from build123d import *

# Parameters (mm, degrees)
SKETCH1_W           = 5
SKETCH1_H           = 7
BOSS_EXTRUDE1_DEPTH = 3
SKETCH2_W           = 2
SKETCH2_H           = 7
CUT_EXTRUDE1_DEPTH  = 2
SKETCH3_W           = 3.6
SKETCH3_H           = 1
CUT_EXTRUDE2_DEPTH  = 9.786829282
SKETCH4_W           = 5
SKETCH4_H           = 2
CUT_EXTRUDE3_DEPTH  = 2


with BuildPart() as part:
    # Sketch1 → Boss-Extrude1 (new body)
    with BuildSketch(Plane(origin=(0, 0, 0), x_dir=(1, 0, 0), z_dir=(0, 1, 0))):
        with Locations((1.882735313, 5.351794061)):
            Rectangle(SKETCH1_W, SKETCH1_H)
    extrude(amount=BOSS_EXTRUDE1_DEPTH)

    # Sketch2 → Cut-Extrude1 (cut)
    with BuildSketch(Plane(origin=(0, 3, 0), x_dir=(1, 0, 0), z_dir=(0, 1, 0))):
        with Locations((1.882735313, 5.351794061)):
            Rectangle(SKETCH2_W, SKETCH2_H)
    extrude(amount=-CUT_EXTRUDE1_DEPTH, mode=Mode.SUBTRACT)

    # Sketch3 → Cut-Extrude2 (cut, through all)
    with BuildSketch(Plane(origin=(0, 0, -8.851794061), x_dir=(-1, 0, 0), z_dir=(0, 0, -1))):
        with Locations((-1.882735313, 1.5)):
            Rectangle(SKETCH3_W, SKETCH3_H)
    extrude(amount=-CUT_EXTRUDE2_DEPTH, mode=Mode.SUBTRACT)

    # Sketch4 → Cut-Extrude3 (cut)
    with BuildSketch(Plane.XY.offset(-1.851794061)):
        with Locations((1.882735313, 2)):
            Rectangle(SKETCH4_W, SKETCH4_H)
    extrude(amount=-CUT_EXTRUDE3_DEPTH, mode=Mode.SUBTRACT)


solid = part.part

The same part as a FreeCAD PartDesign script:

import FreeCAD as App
import Part
import Sketcher
from FreeCAD import Vector

doc = App.newDocument("Part")
params = doc.addObject("Spreadsheet::Sheet", "Params")
for row, (alias, value) in enumerate([
    ("sketch1_width", "5 mm"),
    ("sketch1_height", "7 mm"),
    ("pad1_length", "3 mm"),
    ("sketch2_width", "2 mm"),
    ("sketch2_height", "7 mm"),
    ("pocket1_length", "2 mm"),
    ("sketch3_height", "1 mm"),
    ("sketch3_width", "3.6 mm"),
    ("sketch4_width", "5 mm"),
    ("sketch4_height", "2 mm"),
    ("pocket3_length", "2 mm"),
], start=1):
    params.set(f"A{row}", alias)
    params.set(f"B{row}", "=" + value)
    params.setAlias(f"B{row}", alias)

body = doc.addObject("PartDesign::Body", "Body")

sketch1 = body.newObject("Sketcher::SketchObject", "Sketch")
sketch1.AttachmentSupport = (doc.getObject("XZ_Plane"), [""])
sketch1.MapMode = "FlatFace"
sketch1.addGeometry([
    Part.LineSegment(Vector(-0.617265, -8.851794, 0), Vector(-0.617265, -1.851794, 0)),
    Part.LineSegment(Vector(-0.617265, -1.851794, 0), Vector(4.382735, -1.851794, 0)),
    Part.LineSegment(Vector(4.382735, -1.851794, 0), Vector(4.382735, -8.851794, 0)),
    Part.LineSegment(Vector(4.382735, -8.851794, 0), Vector(-0.617265, -8.851794, 0)),
], False)
sketch1.addConstraint([
    Sketcher.Constraint("Coincident", 0, 2, 1, 1),
    Sketcher.Constraint("Coincident", 1, 2, 2, 1),
    Sketcher.Constraint("Coincident", 2, 2, 3, 1),
    Sketcher.Constraint("Coincident", 3, 2, 0, 1),
    Sketcher.Constraint("Vertical", 0),
    Sketcher.Constraint("Horizontal", 1),
    Sketcher.Constraint("Vertical", 2),
    Sketcher.Constraint("Horizontal", 3),
    Sketcher.Constraint("DistanceX", 1, 1, 1, 2, 5.0),
    Sketcher.Constraint("DistanceY", 0, 1, 0, 2, 7.0),
    Sketcher.Constraint("DistanceX", 0, 2, -1, 1, 0.617265),
    Sketcher.Constraint("DistanceY", 0, 2, -1, 1, 1.851794),
])
sketch1.setExpression("Constraints[8]", "Params.sketch1_width")
sketch1.setExpression("Constraints[9]", "Params.sketch1_height")
pad1 = body.newObject("PartDesign::Pad", "Pad")
pad1.Profile = sketch1
pad1.setExpression("Length", "Params.pad1_length")
pad1.Reversed = True

sketch2 = body.newObject("Sketcher::SketchObject", "Sketch001")
sketch2.AttachmentSupport = (doc.getObject("XZ_Plane"), [""])
sketch2.MapMode = "FlatFace"
sketch2.AttachmentOffset = App.Placement(Vector(0, 0, -3), App.Rotation())
sketch2.addGeometry([
    Part.LineSegment(Vector(0.882735, -8.851794, 0), Vector(0.882735, -1.851794, 0)),
    Part.LineSegment(Vector(0.882735, -1.851794, 0), Vector(2.882735, -1.851794, 0)),
    Part.LineSegment(Vector(2.882735, -1.851794, 0), Vector(2.882735, -8.851794, 0)),
    Part.LineSegment(Vector(2.882735, -8.851794, 0), Vector(0.882735, -8.851794, 0)),
], False)
sketch2.addConstraint([
    Sketcher.Constraint("Coincident", 0, 2, 1, 1),
    Sketcher.Constraint("Coincident", 1, 2, 2, 1),
    Sketcher.Constraint("Coincident", 2, 2, 3, 1),
    Sketcher.Constraint("Coincident", 3, 2, 0, 1),
    Sketcher.Constraint("Vertical", 0),
    Sketcher.Constraint("Horizontal", 1),
    Sketcher.Constraint("Vertical", 2),
    Sketcher.Constraint("Horizontal", 3),
    Sketcher.Constraint("DistanceX", 1, 1, 1, 2, 2.0),
    Sketcher.Constraint("DistanceY", 0, 1, 0, 2, 7.0),
    Sketcher.Constraint("DistanceX", -1, 1, 0, 2, 0.882735),
    Sketcher.Constraint("DistanceY", 0, 2, -1, 1, 1.851794),
])
sketch2.setExpression("Constraints[8]", "Params.sketch2_width")
sketch2.setExpression("Constraints[9]", "Params.sketch2_height")
pocket1 = body.newObject("PartDesign::Pocket", "Pocket")
pocket1.Profile = sketch2
pocket1.setExpression("Length", "Params.pocket1_length")
pocket1.Reversed = True

sketch3 = body.newObject("Sketcher::SketchObject", "Sketch002")
sketch3.AttachmentSupport = (doc.getObject("XY_Plane"), [""])
sketch3.MapMode = "FlatFace"
sketch3.AttachmentOffset = App.Placement(Vector(0, 0, -8.851794), App.Rotation())
sketch3.addGeometry([
    Part.LineSegment(Vector(3.682735, 2, 0), Vector(3.682735, 1, 0)),
    Part.LineSegment(Vector(3.682735, 1, 0), Vector(0.082735, 1, 0)),
    Part.LineSegment(Vector(0.082735, 1, 0), Vector(0.082735, 2, 0)),
    Part.LineSegment(Vector(0.082735, 2, 0), Vector(3.682735, 2, 0)),
], False)
sketch3.addConstraint([
    Sketcher.Constraint("Coincident", 0, 2, 1, 1),
    Sketcher.Constraint("Coincident", 1, 2, 2, 1),
    Sketcher.Constraint("Coincident", 2, 2, 3, 1),
    Sketcher.Constraint("Coincident", 3, 2, 0, 1),
    Sketcher.Constraint("Vertical", 0),
    Sketcher.Constraint("Horizontal", 1),
    Sketcher.Constraint("Vertical", 2),
    Sketcher.Constraint("Horizontal", 3),
    Sketcher.Constraint("DistanceY", 0, 2, 0, 1, 1.0),
    Sketcher.Constraint("DistanceX", 1, 2, 1, 1, 3.6),
    Sketcher.Constraint("DistanceY", -1, 1, 0, 2, 1.0),
    Sketcher.Constraint("DistanceX", -1, 1, 0, 2, 3.682735),
])
sketch3.setExpression("Constraints[8]", "Params.sketch3_height")
sketch3.setExpression("Constraints[9]", "Params.sketch3_width")
pocket2 = body.newObject("PartDesign::Pocket", "Pocket001")
pocket2.Profile = sketch3
pocket2.Type = "ThroughAll"
pocket2.Reversed = True

sketch4 = body.newObject("Sketcher::SketchObject", "Sketch003")
sketch4.AttachmentSupport = (doc.getObject("XY_Plane"), [""])
sketch4.MapMode = "FlatFace"
sketch4.AttachmentOffset = App.Placement(Vector(0, 0, -1.851794), App.Rotation())
sketch4.addGeometry([
    Part.LineSegment(Vector(-0.617265, 3, 0), Vector(-0.617265, 1, 0)),
    Part.LineSegment(Vector(-0.617265, 1, 0), Vector(4.382735, 1, 0)),
    Part.LineSegment(Vector(4.382735, 1, 0), Vector(4.382735, 3, 0)),
    Part.LineSegment(Vector(4.382735, 3, 0), Vector(-0.617265, 3, 0)),
], False)
sketch4.addConstraint([
    Sketcher.Constraint("Coincident", 0, 2, 1, 1),
    Sketcher.Constraint("Coincident", 1, 2, 2, 1),
    Sketcher.Constraint("Coincident", 2, 2, 3, 1),
    Sketcher.Constraint("Coincident", 3, 2, 0, 1),
    Sketcher.Constraint("Vertical", 0),
    Sketcher.Constraint("Horizontal", 1),
    Sketcher.Constraint("Vertical", 2),
    Sketcher.Constraint("Horizontal", 3),
    Sketcher.Constraint("DistanceX", 1, 1, 1, 2, 5.0),
    Sketcher.Constraint("DistanceY", 0, 2, 0, 1, 2.0),
    Sketcher.Constraint("DistanceY", -1, 1, 0, 2, 1.0),
    Sketcher.Constraint("DistanceX", 0, 2, -1, 1, 0.617265),
])
sketch4.setExpression("Constraints[8]", "Params.sketch4_width")
sketch4.setExpression("Constraints[9]", "Params.sketch4_height")
pocket3 = body.newObject("PartDesign::Pocket", "Pocket002")
pocket3.Profile = sketch4
pocket3.setExpression("Length", "Params.pocket3_length")

doc.recompute()
